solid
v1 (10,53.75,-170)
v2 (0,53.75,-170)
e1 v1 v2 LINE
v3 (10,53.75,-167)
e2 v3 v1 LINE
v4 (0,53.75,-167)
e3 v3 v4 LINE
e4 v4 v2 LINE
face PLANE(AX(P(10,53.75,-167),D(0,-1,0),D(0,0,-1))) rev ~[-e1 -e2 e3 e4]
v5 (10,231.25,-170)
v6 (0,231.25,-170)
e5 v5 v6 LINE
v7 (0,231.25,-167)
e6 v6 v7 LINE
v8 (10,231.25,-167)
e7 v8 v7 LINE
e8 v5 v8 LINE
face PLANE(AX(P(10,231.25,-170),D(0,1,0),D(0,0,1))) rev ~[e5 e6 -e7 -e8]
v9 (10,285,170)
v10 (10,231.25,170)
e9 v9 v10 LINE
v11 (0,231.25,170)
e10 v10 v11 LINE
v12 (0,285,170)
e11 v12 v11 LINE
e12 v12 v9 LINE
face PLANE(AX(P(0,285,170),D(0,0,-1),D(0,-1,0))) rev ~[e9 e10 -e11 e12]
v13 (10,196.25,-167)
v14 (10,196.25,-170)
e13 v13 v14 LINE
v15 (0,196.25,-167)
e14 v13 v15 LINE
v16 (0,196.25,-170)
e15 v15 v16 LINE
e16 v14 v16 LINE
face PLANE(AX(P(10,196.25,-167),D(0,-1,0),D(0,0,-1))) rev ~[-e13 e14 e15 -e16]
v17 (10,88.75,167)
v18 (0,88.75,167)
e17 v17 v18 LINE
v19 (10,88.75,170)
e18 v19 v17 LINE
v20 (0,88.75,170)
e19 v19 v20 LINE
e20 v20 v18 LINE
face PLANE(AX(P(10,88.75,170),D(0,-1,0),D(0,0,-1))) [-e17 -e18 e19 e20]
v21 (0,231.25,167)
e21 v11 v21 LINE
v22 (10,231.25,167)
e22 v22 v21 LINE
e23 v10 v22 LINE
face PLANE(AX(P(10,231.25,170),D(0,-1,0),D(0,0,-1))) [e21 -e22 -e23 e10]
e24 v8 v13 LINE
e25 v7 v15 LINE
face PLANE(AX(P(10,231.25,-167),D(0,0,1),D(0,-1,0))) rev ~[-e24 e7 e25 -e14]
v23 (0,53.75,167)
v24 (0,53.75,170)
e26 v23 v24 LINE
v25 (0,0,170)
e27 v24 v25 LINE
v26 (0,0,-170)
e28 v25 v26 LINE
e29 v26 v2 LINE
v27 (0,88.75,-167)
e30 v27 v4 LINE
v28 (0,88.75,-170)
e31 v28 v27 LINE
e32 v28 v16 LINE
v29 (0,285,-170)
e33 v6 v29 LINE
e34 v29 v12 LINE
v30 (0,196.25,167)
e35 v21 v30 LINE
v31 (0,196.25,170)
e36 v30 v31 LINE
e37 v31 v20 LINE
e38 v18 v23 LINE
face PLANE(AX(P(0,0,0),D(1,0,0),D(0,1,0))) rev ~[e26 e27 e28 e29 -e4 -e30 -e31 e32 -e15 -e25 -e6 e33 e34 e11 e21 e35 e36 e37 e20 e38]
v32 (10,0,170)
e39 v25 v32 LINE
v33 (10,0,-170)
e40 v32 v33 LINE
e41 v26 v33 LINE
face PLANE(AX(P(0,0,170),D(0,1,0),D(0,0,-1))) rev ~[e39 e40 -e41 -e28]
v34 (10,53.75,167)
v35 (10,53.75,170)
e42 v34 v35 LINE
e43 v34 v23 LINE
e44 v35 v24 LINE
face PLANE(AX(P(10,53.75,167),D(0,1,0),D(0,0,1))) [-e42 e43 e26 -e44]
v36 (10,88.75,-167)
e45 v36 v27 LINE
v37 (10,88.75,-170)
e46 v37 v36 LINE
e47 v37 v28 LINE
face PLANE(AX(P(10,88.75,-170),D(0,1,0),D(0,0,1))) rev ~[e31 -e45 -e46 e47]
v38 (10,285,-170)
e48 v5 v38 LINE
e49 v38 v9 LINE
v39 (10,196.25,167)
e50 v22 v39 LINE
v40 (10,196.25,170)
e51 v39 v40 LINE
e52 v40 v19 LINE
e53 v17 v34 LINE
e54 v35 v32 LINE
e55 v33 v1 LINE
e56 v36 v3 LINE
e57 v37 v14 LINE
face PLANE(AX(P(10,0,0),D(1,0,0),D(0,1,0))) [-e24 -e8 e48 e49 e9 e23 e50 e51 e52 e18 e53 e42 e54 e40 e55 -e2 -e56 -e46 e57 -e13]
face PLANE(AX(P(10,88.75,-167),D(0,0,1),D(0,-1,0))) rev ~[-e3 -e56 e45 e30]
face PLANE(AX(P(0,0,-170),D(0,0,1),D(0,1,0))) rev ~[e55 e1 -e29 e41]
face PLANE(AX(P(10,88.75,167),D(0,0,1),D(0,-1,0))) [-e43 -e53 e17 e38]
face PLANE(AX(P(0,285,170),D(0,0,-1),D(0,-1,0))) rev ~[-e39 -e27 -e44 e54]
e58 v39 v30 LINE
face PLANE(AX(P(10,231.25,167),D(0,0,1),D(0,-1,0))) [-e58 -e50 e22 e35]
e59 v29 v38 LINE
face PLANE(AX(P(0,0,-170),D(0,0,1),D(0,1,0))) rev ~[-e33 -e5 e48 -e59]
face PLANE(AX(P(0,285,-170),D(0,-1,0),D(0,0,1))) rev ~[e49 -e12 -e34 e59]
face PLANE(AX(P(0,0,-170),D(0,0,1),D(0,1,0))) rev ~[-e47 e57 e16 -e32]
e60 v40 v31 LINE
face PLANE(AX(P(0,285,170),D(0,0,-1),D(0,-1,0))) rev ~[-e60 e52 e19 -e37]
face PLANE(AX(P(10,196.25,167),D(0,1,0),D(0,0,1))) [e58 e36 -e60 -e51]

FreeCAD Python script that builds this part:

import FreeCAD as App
import Part
import Sketcher
from FreeCAD import Vector
Q = App.Units.Quantity

doc = App.newDocument("Part")
body = doc.addObject("PartDesign::Body", "Body")

sketch1 = body.newObject("Sketcher::SketchObject", "Sketch")
sketch1.AttachmentSupport = (doc.getObject("YZ_Plane"), [""])
sketch1.MapMode = "FlatFace"
sketch1.addGeometry(Part.LineSegment(Vector(285, -170, 0), Vector(285, 170, 0)), False)
sketch1.addGeometry(Part.LineSegment(Vector(285, 170, 0), Vector(0, 170, 0)), False)
sketch1.addGeometry(Part.LineSegment(Vector(0, 170, 0), Vector(0, -170, 0)), False)
sketch1.addGeometry(Part.LineSegment(Vector(0, -170, 0), Vector(285, -170, 0)), False)
sketch1.addConstraint(Sketcher.Constraint("Coincident", 0, 2, 1, 1))
sketch1.addConstraint(Sketcher.Constraint("Coincident", 1, 2, 2, 1))
sketch1.addConstraint(Sketcher.Constraint("Coincident", 2, 2, 3, 1))
sketch1.addConstraint(Sketcher.Constraint("Coincident", 3, 2, 0, 1))
sketch1.addConstraint(Sketcher.Constraint("Vertical", 0))
sketch1.addConstraint(Sketcher.Constraint("Horizontal", 1))
sketch1.addConstraint(Sketcher.Constraint("Vertical", 2))
sketch1.addConstraint(Sketcher.Constraint("Horizontal", 3))
sketch1.addConstraint(Sketcher.Constraint("Symmetric", 1, 2, 2, 2, -1, 1))
sketch1.addConstraint(Sketcher.Constraint("DistanceX", 1, 2, 1, 1, Q("285 mm")))
sketch1.addConstraint(Sketcher.Constraint("DistanceY", 0, 1, 0, 2, Q("340 mm")))
pad1 = body.newObject("PartDesign::Pad", "Pad")
pad1.Profile = sketch1
pad1.Length = 10

sketch2 = body.newObject("Sketcher::SketchObject", "Sketch001")
sketch2.AttachmentSupport = (doc.getObject("YZ_Plane"), [""])
sketch2.MapMode = "FlatFace"
sketch2.AttachmentOffset = App.Placement(Vector(0, 0, 10), App.Rotation())
sketch2.addGeometry(Part.LineSegment(Vector(231.2, 167, 0), Vector(231.2, 170, 0)), False)
sketch2.addGeometry(Part.LineSegment(Vector(231.2, 170, 0), Vector(196.2, 170, 0)), False)
sketch2.addGeometry(Part.LineSegment(Vector(196.2, 170, 0), Vector(196.2, 167, 0)), False)
sketch2.addGeometry(Part.LineSegment(Vector(196.2, 167, 0), Vector(231.2, 167, 0)), False)
sketch2.addGeometry(Part.LineSegment(Vector(88.8, 167, 0), Vector(88.8, 170, 0)), False)
sketch2.addGeometry(Part.LineSegment(Vector(88.8, 170, 0), Vector(53.8, 170, 0)), False)
sketch2.addGeometry(Part.LineSegment(Vector(53.8, 170, 0), Vector(53.8, 167, 0)), False)
sketch2.addGeometry(Part.LineSegment(Vector(53.8, 167, 0), Vector(88.8, 167, 0)), False)
sketch2.addGeometry(Part.LineSegment(Vector(53.8, -170, 0), Vector(88.8, -170, 0)), False)
sketch2.addGeometry(Part.LineSegment(Vector(88.8, -170, 0), Vector(88.8, -167, 0)), False)
sketch2.addGeometry(Part.LineSegment(Vector(88.8, -167, 0), Vector(53.8, -167, 0)), False)
sketch2.addGeometry(Part.LineSegment(Vector(53.8, -167, 0), Vector(53.8, -170, 0)), False)
sketch2.addGeometry(Part.LineSegment(Vector(196.2, -170, 0), Vector(231.2, -170, 0)), False)
sketch2.addGeometry(Part.LineSegment(Vector(231.2, -170, 0), Vector(231.2, -167, 0)), False)
sketch2.addGeometry(Part.LineSegment(Vector(231.2, -167, 0), Vector(196.2, -167, 0)), False)
sketch2.addGeometry(Part.LineSegment(Vector(196.2, -167, 0), Vector(196.2, -170, 0)), False)
sketch2.addConstraint(Sketcher.Constraint("Coincident", 0, 2, 1, 1))
sketch2.addConstraint(Sketcher.Constraint("Coincident", 1, 2, 2, 1))
sketch2.addConstraint(Sketcher.Constraint("Coincident", 2, 2, 3, 1))
sketch2.addConstraint(Sketcher.Constraint("Coincident", 3, 2, 0, 1))
sketch2.addConstraint(Sketcher.Constraint("Coincident", 4, 2, 5, 1))
sketch2.addConstraint(Sketcher.Constraint("Coincident", 5, 2, 6, 1))
sketch2.addConstraint(Sketcher.Constraint("Coincident", 6, 2, 7, 1))
sketch2.addConstraint(Sketcher.Constraint("Coincident", 7, 2, 4, 1))
sketch2.addConstraint(Sketcher.Constraint("Coincident", 8, 2, 9, 1))
sketch2.addConstraint(Sketcher.Constraint("Coincident", 9, 2, 10, 1))
sketch2.addConstraint(Sketcher.Constraint("Coincident", 10, 2, 11, 1))
sketch2.addConstraint(Sketcher.Constraint("Coincident", 11, 2, 8, 1))
sketch2.addConstraint(Sketcher.Constraint("Coincident", 12, 2, 13, 1))
sketch2.addConstraint(Sketcher.Constraint("Coincident", 13, 2, 14, 1))
sketch2.addConstraint(Sketcher.Constraint("Coincident", 14, 2, 15, 1))
sketch2.addConstraint(Sketcher.Constraint("Coincident", 15, 2, 12, 1))
sketch2.addConstraint(Sketcher.Constraint("Vertical", 0))
sketch2.addConstraint(Sketcher.Constraint("Horizontal", 1))
sketch2.addConstraint(Sketcher.Constraint("Vertical", 2))
sketch2.addConstraint(Sketcher.Constraint("Horizontal", 3))
sketch2.addConstraint(Sketcher.Constraint("Vertical", 4))
sketch2.addConstraint(Sketcher.Constraint("Horizontal", 5))
sketch2.addConstraint(Sketcher.Constraint("Vertical", 6))
sketch2.addConstraint(Sketcher.Constraint("Horizontal", 7))
sketch2.addConstraint(Sketcher.Constraint("Horizontal", 8))
sketch2.addConstraint(Sketcher.Constraint("Vertical", 9))
sketch2.addConstraint(Sketcher.Constraint("Horizontal", 10))
sketch2.addConstraint(Sketcher.Constraint("Vertical", 11))
sketch2.addConstraint(Sketcher.Constraint("Horizontal", 12))
sketch2.addConstraint(Sketcher.Constraint("Vertical", 13))
sketch2.addConstraint(Sketcher.Constraint("Horizontal", 14))
sketch2.addConstraint(Sketcher.Constraint("Vertical", 15))
sketch2.addConstraint(Sketcher.Constraint("Symmetric", 4, 2, 8, 2, -1))
sketch2.addConstraint(Sketcher.Constraint("Symmetric", 6, 2, 10, 2, -1))
sketch2.addConstraint(Sketcher.Constraint("Symmetric", 0, 2, 12, 2, -1))
sketch2.addConstraint(Sketcher.Constraint("Symmetric", 2, 2, 14, 2, -1))
sketch2.addConstraint(Sketcher.Constraint("Horizontal", 1, 2, 4, 2))
sketch2.addConstraint(Sketcher.Constraint("Horizontal", 3, 2, 6, 2))
sketch2.addConstraint(Sketcher.Constraint("Equal", 3, 5))
sketch2.addConstraint(Sketcher.Constraint("DistanceX", 1, 2, 1, 1, Q("35 mm")))
sketch2.addConstraint(Sketcher.Constraint("DistanceY", 0, 1, 0, 2, Q("3 mm")))
sketch2.addConstraint(Sketcher.Constraint("DistanceX", 4, 2, 0, 2, Q("142.5 mm")))
sketch2.addConstraint(Sketcher.Constraint("DistanceY", -1, 1, 0, 2, Q("170 mm")))
sketch2.addConstraint(Sketcher.Constraint("DistanceX", -1, 1, 0, 2, Q("231.25 mm")))
pocket1 = body.newObject("PartDesign::Pocket", "Pocket")
pocket1.Profile = sketch2
pocket1.Length = 10

doc.recompute()
